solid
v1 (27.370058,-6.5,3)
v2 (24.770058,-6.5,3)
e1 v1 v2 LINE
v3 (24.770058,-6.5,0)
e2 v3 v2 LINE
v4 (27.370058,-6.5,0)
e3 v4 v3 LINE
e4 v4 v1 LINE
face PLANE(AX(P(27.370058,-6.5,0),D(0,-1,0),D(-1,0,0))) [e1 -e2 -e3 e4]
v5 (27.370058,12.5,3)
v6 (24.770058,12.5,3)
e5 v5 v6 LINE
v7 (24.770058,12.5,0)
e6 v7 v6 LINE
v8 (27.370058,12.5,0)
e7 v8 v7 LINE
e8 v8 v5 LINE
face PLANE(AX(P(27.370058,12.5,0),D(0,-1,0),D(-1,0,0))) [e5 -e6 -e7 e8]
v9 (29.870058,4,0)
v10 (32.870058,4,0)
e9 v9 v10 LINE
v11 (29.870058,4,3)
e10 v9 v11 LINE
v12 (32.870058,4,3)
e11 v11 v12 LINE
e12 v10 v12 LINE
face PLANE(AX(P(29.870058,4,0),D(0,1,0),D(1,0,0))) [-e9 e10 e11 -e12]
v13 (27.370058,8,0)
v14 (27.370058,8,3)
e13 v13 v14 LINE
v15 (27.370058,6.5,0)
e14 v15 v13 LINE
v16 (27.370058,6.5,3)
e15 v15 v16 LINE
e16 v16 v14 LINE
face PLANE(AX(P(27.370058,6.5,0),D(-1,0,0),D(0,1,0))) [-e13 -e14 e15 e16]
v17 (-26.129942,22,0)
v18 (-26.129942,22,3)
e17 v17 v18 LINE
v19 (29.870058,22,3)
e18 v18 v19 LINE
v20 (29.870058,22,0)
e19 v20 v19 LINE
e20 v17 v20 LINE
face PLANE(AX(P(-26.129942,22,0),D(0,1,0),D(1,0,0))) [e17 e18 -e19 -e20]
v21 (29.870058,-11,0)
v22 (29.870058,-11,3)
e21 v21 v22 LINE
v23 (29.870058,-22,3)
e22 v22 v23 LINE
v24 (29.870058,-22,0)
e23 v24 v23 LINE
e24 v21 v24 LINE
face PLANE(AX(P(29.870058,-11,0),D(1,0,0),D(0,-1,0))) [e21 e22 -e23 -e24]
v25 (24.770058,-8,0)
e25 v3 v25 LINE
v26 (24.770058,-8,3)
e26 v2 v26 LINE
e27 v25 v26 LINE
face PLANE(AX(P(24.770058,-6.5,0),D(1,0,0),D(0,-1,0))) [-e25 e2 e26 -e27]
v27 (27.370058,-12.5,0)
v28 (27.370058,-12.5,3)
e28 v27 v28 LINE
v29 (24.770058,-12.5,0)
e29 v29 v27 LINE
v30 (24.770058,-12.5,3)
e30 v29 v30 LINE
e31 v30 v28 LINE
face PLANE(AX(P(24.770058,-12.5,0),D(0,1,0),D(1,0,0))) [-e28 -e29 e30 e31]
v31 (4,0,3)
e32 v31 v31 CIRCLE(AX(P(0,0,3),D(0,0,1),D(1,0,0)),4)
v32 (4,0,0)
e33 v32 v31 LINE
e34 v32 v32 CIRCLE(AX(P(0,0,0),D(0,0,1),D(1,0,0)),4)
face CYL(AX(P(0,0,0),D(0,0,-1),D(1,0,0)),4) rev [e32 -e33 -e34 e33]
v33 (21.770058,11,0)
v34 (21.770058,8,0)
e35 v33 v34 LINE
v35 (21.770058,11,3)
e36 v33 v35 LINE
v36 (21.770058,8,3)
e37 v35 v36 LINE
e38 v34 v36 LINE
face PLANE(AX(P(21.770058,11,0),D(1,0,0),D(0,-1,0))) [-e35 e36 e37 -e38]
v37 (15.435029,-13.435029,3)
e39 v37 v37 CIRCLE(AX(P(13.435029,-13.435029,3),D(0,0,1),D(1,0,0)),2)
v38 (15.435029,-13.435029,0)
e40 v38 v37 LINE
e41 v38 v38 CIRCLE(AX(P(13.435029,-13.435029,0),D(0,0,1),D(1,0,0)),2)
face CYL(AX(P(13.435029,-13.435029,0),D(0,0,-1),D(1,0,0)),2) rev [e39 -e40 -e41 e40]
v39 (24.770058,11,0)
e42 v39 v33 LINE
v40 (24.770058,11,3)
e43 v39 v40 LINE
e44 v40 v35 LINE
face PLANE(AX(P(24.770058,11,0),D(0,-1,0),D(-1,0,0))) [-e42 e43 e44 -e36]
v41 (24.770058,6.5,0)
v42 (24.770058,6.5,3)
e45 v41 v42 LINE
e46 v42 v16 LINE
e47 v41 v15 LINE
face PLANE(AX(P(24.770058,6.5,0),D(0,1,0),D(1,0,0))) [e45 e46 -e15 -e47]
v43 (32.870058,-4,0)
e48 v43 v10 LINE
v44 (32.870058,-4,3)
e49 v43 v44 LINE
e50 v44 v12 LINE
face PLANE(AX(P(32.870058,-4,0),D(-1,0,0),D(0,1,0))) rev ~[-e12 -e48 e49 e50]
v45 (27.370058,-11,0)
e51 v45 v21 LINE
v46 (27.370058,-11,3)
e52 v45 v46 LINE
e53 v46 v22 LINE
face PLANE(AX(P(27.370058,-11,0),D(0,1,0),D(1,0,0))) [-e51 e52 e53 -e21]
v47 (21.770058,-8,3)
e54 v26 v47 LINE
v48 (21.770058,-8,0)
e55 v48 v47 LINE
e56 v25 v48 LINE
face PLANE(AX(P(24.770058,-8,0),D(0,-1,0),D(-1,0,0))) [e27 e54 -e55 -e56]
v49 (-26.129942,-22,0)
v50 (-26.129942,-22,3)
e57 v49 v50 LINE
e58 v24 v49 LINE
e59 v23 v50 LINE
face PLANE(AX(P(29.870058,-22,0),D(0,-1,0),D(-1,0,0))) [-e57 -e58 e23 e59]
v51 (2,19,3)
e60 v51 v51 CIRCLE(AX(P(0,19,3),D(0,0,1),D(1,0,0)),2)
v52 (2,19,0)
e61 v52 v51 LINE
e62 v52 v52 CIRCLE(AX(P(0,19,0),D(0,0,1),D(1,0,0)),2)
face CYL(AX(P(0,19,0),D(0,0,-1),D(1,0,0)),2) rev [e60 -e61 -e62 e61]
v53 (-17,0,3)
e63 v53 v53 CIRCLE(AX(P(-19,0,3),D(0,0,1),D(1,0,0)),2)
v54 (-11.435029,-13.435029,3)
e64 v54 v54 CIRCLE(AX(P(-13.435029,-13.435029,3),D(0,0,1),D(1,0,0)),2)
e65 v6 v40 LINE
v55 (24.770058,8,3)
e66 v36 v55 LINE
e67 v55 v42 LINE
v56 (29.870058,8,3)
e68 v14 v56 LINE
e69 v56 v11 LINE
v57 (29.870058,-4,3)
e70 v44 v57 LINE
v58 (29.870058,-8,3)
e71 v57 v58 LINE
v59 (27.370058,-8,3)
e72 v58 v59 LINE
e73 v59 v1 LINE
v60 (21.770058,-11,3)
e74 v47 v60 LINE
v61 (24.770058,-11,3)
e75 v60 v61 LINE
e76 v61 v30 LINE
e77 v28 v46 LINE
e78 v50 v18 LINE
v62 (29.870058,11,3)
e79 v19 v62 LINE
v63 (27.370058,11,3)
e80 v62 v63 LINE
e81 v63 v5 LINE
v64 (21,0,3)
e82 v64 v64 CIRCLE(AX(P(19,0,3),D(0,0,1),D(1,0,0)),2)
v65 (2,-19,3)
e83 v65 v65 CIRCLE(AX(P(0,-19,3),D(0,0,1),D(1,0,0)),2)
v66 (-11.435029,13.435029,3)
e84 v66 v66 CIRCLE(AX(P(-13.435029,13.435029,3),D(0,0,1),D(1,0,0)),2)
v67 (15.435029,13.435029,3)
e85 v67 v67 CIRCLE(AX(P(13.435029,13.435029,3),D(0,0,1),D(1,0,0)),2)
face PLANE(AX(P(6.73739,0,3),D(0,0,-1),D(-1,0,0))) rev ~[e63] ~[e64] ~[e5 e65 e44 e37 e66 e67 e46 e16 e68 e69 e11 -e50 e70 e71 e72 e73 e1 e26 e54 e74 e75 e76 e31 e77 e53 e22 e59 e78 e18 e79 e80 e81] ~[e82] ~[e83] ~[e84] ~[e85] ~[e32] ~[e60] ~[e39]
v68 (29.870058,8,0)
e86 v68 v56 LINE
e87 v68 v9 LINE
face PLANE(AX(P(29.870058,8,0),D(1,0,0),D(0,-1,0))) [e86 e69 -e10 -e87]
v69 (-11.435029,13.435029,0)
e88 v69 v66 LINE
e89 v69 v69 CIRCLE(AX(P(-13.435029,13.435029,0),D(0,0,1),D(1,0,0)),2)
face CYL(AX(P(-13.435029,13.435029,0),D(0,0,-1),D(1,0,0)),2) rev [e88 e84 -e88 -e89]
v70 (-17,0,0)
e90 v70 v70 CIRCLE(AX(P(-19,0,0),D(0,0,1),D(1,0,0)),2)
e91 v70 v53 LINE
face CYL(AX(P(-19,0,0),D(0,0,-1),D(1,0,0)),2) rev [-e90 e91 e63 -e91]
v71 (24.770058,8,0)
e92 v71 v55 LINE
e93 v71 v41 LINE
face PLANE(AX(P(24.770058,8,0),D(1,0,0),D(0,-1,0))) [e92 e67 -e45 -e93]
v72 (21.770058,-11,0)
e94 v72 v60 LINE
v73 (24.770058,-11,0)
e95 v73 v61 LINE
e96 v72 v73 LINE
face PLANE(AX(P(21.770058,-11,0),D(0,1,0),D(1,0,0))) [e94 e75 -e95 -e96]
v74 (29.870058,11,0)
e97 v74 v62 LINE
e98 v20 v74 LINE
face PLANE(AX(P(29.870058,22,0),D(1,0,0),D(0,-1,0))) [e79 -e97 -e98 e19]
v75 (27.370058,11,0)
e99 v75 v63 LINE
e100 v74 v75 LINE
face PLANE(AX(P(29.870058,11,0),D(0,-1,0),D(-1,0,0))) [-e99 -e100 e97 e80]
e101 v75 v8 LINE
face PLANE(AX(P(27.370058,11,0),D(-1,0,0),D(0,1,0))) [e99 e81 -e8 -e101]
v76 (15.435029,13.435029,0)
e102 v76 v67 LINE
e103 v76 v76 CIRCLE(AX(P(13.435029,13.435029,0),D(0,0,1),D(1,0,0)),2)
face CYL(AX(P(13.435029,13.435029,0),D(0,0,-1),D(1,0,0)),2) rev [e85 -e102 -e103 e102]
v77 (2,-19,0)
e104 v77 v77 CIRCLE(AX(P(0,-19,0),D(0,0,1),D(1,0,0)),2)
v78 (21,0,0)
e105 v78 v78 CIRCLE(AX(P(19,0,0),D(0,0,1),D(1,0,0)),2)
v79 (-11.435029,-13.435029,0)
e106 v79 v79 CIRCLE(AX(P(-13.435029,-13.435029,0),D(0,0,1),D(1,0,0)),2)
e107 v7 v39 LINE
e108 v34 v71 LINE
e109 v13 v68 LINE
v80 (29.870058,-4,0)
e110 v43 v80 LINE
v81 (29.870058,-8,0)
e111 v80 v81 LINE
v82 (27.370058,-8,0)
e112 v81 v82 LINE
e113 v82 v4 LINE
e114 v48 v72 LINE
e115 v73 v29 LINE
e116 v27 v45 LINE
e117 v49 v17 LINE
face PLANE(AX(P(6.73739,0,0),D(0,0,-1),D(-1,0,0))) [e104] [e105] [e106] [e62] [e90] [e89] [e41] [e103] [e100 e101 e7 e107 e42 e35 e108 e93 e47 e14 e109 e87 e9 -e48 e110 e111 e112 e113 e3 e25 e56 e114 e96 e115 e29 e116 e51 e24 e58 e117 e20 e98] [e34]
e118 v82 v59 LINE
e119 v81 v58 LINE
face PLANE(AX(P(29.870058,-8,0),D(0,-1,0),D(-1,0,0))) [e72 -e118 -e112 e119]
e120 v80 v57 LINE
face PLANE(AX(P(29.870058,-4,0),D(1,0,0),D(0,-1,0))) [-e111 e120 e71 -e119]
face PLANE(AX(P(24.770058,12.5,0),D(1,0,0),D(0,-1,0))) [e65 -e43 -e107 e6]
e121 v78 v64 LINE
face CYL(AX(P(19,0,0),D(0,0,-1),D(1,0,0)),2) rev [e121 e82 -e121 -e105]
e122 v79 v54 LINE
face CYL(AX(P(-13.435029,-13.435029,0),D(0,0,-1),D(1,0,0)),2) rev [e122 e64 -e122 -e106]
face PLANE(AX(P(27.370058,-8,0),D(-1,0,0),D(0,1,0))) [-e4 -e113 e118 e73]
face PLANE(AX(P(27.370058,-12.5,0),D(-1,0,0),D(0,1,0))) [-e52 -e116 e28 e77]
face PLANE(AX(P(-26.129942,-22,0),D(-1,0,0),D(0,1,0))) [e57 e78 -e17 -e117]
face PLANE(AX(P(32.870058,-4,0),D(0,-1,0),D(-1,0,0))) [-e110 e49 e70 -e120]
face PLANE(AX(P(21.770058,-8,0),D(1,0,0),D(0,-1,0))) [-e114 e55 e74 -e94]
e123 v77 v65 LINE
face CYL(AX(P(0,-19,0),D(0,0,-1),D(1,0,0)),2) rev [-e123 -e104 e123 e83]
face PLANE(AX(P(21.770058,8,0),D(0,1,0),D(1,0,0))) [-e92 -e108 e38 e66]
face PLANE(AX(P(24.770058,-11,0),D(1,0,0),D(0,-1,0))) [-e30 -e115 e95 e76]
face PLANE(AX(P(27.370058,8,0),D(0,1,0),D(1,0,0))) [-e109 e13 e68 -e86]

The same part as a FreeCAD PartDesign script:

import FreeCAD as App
import Part
import Sketcher
from FreeCAD import Vector

doc = App.newDocument("Part")
body = doc.addObject("PartDesign::Body", "Body")

# Sketch on XY plane
sketch1 = body.newObject("Sketcher::SketchObject", "Sketch")
sketch1.AttachmentSupport = (doc.getObject("XY_Plane"), [""])
sketch1.MapMode = "FlatFace"
sketch1.addGeometry([
    Part.LineSegment(Vector(27.370058, 12.5, 0), Vector(27.370058, 11, 0)),  # 0
    Part.LineSegment(Vector(27.370058, 11, 0), Vector(29.870058, 11, 0)),  # 1
    Part.LineSegment(Vector(29.870058, 11, 0), Vector(29.870058, 22, 0)),  # 2
    Part.LineSegment(Vector(29.870058, 22, 0), Vector(-26.129942, 22, 0)),  # 3
    Part.LineSegment(Vector(-26.129942, 22, 0), Vector(-26.129942, -22, 0)),  # 4
    Part.LineSegment(Vector(-26.129942, -22, 0), Vector(29.870058, -22, 0)),  # 5
    Part.LineSegment(Vector(29.870058, -22, 0), Vector(29.870058, -11, 0)),  # 6
    Part.LineSegment(Vector(29.870058, -11, 0), Vector(27.370058, -11, 0)),  # 7
    Part.LineSegment(Vector(27.370058, -11, 0), Vector(27.370058, -12.5, 0)),  # 8
    Part.LineSegment(Vector(27.370058, -12.5, 0), Vector(24.770058, -12.5, 0)),  # 9
    Part.LineSegment(Vector(24.770058, -12.5, 0), Vector(24.770058, -11, 0)),  # 10
    Part.LineSegment(Vector(24.770058, -11, 0), Vector(21.770058, -11, 0)),  # 11
    Part.LineSegment(Vector(21.770058, -11, 0), Vector(21.770058, -8, 0)),  # 12
    Part.LineSegment(Vector(21.770058, -8, 0), Vector(24.770058, -8, 0)),  # 13
    Part.LineSegment(Vector(24.770058, -8, 0), Vector(24.770058, -6.5, 0)),  # 14
    Part.LineSegment(Vector(24.770058, -6.5, 0), Vector(27.370058, -6.5, 0)),  # 15
    Part.LineSegment(Vector(27.370058, -6.5, 0), Vector(27.370058, -8, 0)),  # 16
    Part.LineSegment(Vector(27.370058, -8, 0), Vector(29.870058, -8, 0)),  # 17
    Part.LineSegment(Vector(29.870058, -8, 0), Vector(29.870058, -4, 0)),  # 18
    Part.LineSegment(Vector(29.870058, -4, 0), Vector(32.870058, -4, 0)),  # 19
    Part.LineSegment(Vector(32.870058, -4, 0), Vector(32.870058, 4, 0)),  # 20
    Part.LineSegment(Vector(32.870058, 4, 0), Vector(29.870058, 4, 0)),  # 21
    Part.LineSegment(Vector(29.870058, 4, 0), Vector(29.870058, 8, 0)),  # 22
    Part.LineSegment(Vector(29.870058, 8, 0), Vector(27.370058, 8, 0)),  # 23
    Part.LineSegment(Vector(27.370058, 8, 0), Vector(27.370058, 6.5, 0)),  # 24
    Part.LineSegment(Vector(27.370058, 6.5, 0), Vector(24.770058, 6.5, 0)),  # 25
    Part.LineSegment(Vector(24.770058, 6.5, 0), Vector(24.770058, 8, 0)),  # 26
    Part.LineSegment(Vector(24.770058, 8, 0), Vector(21.770058, 8, 0)),  # 27
    Part.LineSegment(Vector(21.770058, 8, 0), Vector(21.770058, 11, 0)),  # 28
    Part.LineSegment(Vector(21.770058, 11, 0), Vector(24.770058, 11, 0)),  # 29
    Part.LineSegment(Vector(24.770058, 11, 0), Vector(24.770058, 12.5, 0)),  # 30
    Part.LineSegment(Vector(24.770058, 12.5, 0), Vector(27.370058, 12.5, 0)),  # 31
    Part.Circle(Vector(13.435029, -13.435029, 0), Vector(0, 0, 1), 2),  # 32
    Part.Circle(Vector(0, -19, 0), Vector(0, 0, 1), 2),  # 33
    Part.Circle(Vector(-13.435029, -13.435029, 0), Vector(0, 0, 1), 2),  # 34
    Part.Circle(Vector(19, 0, 0), Vector(0, 0, 1), 2),  # 35
    Part.Circle(Vector(13.435029, 13.435029, 0), Vector(0, 0, 1), 2),  # 36
    Part.Circle(Vector(0, 0, 0), Vector(0, 0, 1), 4),  # 37
    Part.Circle(Vector(-19, 0, 0), Vector(0, 0, 1), 2),  # 38
    Part.Circle(Vector(0, 19, 0), Vector(0, 0, 1), 2),  # 39
    Part.Circle(Vector(-13.435029, 13.435029, 0), Vector(0, 0, 1), 2),  # 40
], False)
sketch1.addConstraint([
    Sketcher.Constraint("Coincident", 0, 2, 1, 1),
    Sketcher.Constraint("Coincident", 1, 2, 2, 1),
    Sketcher.Constraint("Coincident", 2, 2, 3, 1),
    Sketcher.Constraint("Coincident", 3, 2, 4, 1),
    Sketcher.Constraint("Coincident", 4, 2, 5, 1),
    Sketcher.Constraint("Coincident", 5, 2, 6, 1),
    Sketcher.Constraint("Coincident", 6, 2, 7, 1),
    Sketcher.Constraint("Coincident", 7, 2, 8, 1),
    Sketcher.Constraint("Coincident", 8, 2, 9, 1),
    Sketcher.Constraint("Coincident", 9, 2, 10, 1),
    Sketcher.Constraint("Coincident", 10, 2, 11, 1),
    Sketcher.Constraint("Coincident", 11, 2, 12, 1),
    Sketcher.Constraint("Coincident", 12, 2, 13, 1),
    Sketcher.Constraint("Coincident", 13, 2, 14, 1),
    Sketcher.Constraint("Coincident", 14, 2, 15, 1),
    Sketcher.Constraint("Coincident", 15, 2, 16, 1),
    Sketcher.Constraint("Coincident", 16, 2, 17, 1),
    Sketcher.Constraint("Coincident", 17, 2, 18, 1),
    Sketcher.Constraint("Coincident", 18, 2, 19, 1),
    Sketcher.Constraint("Coincident", 19, 2, 20, 1),
    Sketcher.Constraint("Coincident", 20, 2, 21, 1),
    Sketcher.Constraint("Coincident", 21, 2, 22, 1),
    Sketcher.Constraint("Coincident", 22, 2, 23, 1),
    Sketcher.Constraint("Coincident", 23, 2, 24, 1),
    Sketcher.Constraint("Coincident", 24, 2, 25, 1),
    Sketcher.Constraint("Coincident", 25, 2, 26, 1),
    Sketcher.Constraint("Coincident", 26, 2, 27, 1),
    Sketcher.Constraint("Coincident", 27, 2, 28, 1),
    Sketcher.Constraint("Coincident", 28, 2, 29, 1),
    Sketcher.Constraint("Coincident", 29, 2, 30, 1),
    Sketcher.Constraint("Coincident", 30, 2, 31, 1),
    Sketcher.Constraint("Coincident", 31, 2, 0, 1),
    Sketcher.Constraint("Vertical", 0),
    Sketcher.Constraint("Horizontal", 1),
    Sketcher.Constraint("Vertical", 2),
    Sketcher.Constraint("Horizontal", 3),
    Sketcher.Constraint("Vertical", 4),
    Sketcher.Constraint("Horizontal", 5),
    Sketcher.Constraint("Vertical", 6),
    Sketcher.Constraint("Horizontal", 7),
    Sketcher.Constraint("Vertical", 8),
    Sketcher.Constraint("Horizontal", 9),
    Sketcher.Constraint("Vertical", 10),
    Sketcher.Constraint("Horizontal", 11),
    Sketcher.Constraint("Vertical", 12),
    Sketcher.Constraint("Horizontal", 13),
    Sketcher.Constraint("Vertical", 14),
    Sketcher.Constraint("Horizontal", 15),
    Sketcher.Constraint("Vertical", 16),
    Sketcher.Constraint("Horizontal", 17),
    Sketcher.Constraint("Vertical", 18),
    Sketcher.Constraint("Horizontal", 19),
    Sketcher.Constraint("Vertical", 20),
    Sketcher.Constraint("Horizontal", 21),
    Sketcher.Constraint("Vertical", 22),
    Sketcher.Constraint("Horizontal", 23),
    Sketcher.Constraint("Vertical", 24),
    Sketcher.Constraint("Horizontal", 25),
    Sketcher.Constraint("Vertical", 26),
    Sketcher.Constraint("Horizontal", 27),
    Sketcher.Constraint("Vertical", 28),
    Sketcher.Constraint("Horizontal", 29),
    Sketcher.Constraint("Vertical", 30),
    Sketcher.Constraint("Horizontal", 31),
    Sketcher.Constraint("Coincident", 37, 3, -1, 1),
    Sketcher.Constraint("Equal", 32, 33),
    Sketcher.Constraint("Equal", 33, 34),
    Sketcher.Constraint("Equal", 34, 35),
    Sketcher.Constraint("Equal", 35, 36),
    Sketcher.Constraint("Equal", 36, 38),
    Sketcher.Constraint("Equal", 38, 39),
    Sketcher.Constraint("Equal", 39, 40),
    Sketcher.Constraint("Symmetric", 34, 3, 36, 3, -1, 1),
    Sketcher.Constraint("Symmetric", 35, 3, 38, 3, -1, 1),
    Sketcher.Constraint("Symmetric", 33, 3, 39, 3, -1, 1),
    Sketcher.Constraint("Symmetric", 32, 3, 40, 3, -1, 1),
    Sketcher.Constraint("Symmetric", 32, 3, 34, 3, -2),
    Sketcher.Constraint("Symmetric", 2, 2, 5, 2, -1),
    Sketcher.Constraint("Symmetric", 0, 2, 7, 2, -1),
    Sketcher.Constraint("Symmetric", 18, 2, 21, 2, -1),
    Sketcher.Constraint("Symmetric", 16, 2, 23, 2, -1),
    Sketcher.Constraint("Symmetric", 14, 2, 25, 2, -1),
    Sketcher.Constraint("Symmetric", 12, 2, 27, 2, -1),
    Sketcher.Constraint("Symmetric", 10, 2, 29, 2, -1),
    Sketcher.Constraint("PointOnObject", 33, 3, -2),
    Sketcher.Constraint("PointOnObject", 35, 3, -1),
    Sketcher.Constraint("Horizontal", 7, 2, 10, 2),
    Sketcher.Constraint("Horizontal", 13, 2, 16, 2),
    Sketcher.Constraint("Vertical", 10, 2, 13, 2),
    Sketcher.Constraint("Vertical", 8, 2, 15, 2),
    Sketcher.Constraint("Vertical", 6, 2, 17, 2),
    Sketcher.Constraint("Equal", 13, 19),
    Sketcher.Constraint("Equal", 0, 8),
    Sketcher.Constraint("Equal", 29, 12),
    Sketcher.Constraint("Equal", 10, 14),
    Sketcher.Constraint("Diameter", 32, 4.0),
    Sketcher.Constraint("Diameter", 37, 8.0),
    Sketcher.Constraint("DistanceX", 3, 2, 3, 1, 56.0),
    Sketcher.Constraint("DistanceX", 11, 2, 11, 1, 3.0),
    Sketcher.Constraint("DistanceY", 2, 1, 2, 2, 11.0),
    Sketcher.Constraint("DistanceY", 4, 2, 4, 1, 44.0),
    Sketcher.Constraint("DistanceY", 18, 1, 18, 2, 4.0),
    Sketcher.Constraint("DistanceX", 1, 1, 1, 2, 2.5),
    Sketcher.Constraint("DistanceX", 9, 2, 9, 1, 2.6),
    Sketcher.Constraint("DistanceY", 0, 2, 0, 1, 1.5),
    Sketcher.Constraint("DistanceY", 33, 3, -1, 1, 19.0),
    Sketcher.Constraint("DistanceX", -1, 1, 35, 3, 19.0),
    Sketcher.Constraint("DistanceX", -1, 1, 32, 3, 13.435029),
    Sketcher.Constraint("DistanceY", 32, 3, -1, 1, 13.435029),
    Sketcher.Constraint("DistanceX", 36, 3, 0, 2, 13.935029),
])
pad1 = body.newObject("PartDesign::Pad", "Pad")
pad1.Profile = sketch1
pad1.Length = 3

doc.recompute()
